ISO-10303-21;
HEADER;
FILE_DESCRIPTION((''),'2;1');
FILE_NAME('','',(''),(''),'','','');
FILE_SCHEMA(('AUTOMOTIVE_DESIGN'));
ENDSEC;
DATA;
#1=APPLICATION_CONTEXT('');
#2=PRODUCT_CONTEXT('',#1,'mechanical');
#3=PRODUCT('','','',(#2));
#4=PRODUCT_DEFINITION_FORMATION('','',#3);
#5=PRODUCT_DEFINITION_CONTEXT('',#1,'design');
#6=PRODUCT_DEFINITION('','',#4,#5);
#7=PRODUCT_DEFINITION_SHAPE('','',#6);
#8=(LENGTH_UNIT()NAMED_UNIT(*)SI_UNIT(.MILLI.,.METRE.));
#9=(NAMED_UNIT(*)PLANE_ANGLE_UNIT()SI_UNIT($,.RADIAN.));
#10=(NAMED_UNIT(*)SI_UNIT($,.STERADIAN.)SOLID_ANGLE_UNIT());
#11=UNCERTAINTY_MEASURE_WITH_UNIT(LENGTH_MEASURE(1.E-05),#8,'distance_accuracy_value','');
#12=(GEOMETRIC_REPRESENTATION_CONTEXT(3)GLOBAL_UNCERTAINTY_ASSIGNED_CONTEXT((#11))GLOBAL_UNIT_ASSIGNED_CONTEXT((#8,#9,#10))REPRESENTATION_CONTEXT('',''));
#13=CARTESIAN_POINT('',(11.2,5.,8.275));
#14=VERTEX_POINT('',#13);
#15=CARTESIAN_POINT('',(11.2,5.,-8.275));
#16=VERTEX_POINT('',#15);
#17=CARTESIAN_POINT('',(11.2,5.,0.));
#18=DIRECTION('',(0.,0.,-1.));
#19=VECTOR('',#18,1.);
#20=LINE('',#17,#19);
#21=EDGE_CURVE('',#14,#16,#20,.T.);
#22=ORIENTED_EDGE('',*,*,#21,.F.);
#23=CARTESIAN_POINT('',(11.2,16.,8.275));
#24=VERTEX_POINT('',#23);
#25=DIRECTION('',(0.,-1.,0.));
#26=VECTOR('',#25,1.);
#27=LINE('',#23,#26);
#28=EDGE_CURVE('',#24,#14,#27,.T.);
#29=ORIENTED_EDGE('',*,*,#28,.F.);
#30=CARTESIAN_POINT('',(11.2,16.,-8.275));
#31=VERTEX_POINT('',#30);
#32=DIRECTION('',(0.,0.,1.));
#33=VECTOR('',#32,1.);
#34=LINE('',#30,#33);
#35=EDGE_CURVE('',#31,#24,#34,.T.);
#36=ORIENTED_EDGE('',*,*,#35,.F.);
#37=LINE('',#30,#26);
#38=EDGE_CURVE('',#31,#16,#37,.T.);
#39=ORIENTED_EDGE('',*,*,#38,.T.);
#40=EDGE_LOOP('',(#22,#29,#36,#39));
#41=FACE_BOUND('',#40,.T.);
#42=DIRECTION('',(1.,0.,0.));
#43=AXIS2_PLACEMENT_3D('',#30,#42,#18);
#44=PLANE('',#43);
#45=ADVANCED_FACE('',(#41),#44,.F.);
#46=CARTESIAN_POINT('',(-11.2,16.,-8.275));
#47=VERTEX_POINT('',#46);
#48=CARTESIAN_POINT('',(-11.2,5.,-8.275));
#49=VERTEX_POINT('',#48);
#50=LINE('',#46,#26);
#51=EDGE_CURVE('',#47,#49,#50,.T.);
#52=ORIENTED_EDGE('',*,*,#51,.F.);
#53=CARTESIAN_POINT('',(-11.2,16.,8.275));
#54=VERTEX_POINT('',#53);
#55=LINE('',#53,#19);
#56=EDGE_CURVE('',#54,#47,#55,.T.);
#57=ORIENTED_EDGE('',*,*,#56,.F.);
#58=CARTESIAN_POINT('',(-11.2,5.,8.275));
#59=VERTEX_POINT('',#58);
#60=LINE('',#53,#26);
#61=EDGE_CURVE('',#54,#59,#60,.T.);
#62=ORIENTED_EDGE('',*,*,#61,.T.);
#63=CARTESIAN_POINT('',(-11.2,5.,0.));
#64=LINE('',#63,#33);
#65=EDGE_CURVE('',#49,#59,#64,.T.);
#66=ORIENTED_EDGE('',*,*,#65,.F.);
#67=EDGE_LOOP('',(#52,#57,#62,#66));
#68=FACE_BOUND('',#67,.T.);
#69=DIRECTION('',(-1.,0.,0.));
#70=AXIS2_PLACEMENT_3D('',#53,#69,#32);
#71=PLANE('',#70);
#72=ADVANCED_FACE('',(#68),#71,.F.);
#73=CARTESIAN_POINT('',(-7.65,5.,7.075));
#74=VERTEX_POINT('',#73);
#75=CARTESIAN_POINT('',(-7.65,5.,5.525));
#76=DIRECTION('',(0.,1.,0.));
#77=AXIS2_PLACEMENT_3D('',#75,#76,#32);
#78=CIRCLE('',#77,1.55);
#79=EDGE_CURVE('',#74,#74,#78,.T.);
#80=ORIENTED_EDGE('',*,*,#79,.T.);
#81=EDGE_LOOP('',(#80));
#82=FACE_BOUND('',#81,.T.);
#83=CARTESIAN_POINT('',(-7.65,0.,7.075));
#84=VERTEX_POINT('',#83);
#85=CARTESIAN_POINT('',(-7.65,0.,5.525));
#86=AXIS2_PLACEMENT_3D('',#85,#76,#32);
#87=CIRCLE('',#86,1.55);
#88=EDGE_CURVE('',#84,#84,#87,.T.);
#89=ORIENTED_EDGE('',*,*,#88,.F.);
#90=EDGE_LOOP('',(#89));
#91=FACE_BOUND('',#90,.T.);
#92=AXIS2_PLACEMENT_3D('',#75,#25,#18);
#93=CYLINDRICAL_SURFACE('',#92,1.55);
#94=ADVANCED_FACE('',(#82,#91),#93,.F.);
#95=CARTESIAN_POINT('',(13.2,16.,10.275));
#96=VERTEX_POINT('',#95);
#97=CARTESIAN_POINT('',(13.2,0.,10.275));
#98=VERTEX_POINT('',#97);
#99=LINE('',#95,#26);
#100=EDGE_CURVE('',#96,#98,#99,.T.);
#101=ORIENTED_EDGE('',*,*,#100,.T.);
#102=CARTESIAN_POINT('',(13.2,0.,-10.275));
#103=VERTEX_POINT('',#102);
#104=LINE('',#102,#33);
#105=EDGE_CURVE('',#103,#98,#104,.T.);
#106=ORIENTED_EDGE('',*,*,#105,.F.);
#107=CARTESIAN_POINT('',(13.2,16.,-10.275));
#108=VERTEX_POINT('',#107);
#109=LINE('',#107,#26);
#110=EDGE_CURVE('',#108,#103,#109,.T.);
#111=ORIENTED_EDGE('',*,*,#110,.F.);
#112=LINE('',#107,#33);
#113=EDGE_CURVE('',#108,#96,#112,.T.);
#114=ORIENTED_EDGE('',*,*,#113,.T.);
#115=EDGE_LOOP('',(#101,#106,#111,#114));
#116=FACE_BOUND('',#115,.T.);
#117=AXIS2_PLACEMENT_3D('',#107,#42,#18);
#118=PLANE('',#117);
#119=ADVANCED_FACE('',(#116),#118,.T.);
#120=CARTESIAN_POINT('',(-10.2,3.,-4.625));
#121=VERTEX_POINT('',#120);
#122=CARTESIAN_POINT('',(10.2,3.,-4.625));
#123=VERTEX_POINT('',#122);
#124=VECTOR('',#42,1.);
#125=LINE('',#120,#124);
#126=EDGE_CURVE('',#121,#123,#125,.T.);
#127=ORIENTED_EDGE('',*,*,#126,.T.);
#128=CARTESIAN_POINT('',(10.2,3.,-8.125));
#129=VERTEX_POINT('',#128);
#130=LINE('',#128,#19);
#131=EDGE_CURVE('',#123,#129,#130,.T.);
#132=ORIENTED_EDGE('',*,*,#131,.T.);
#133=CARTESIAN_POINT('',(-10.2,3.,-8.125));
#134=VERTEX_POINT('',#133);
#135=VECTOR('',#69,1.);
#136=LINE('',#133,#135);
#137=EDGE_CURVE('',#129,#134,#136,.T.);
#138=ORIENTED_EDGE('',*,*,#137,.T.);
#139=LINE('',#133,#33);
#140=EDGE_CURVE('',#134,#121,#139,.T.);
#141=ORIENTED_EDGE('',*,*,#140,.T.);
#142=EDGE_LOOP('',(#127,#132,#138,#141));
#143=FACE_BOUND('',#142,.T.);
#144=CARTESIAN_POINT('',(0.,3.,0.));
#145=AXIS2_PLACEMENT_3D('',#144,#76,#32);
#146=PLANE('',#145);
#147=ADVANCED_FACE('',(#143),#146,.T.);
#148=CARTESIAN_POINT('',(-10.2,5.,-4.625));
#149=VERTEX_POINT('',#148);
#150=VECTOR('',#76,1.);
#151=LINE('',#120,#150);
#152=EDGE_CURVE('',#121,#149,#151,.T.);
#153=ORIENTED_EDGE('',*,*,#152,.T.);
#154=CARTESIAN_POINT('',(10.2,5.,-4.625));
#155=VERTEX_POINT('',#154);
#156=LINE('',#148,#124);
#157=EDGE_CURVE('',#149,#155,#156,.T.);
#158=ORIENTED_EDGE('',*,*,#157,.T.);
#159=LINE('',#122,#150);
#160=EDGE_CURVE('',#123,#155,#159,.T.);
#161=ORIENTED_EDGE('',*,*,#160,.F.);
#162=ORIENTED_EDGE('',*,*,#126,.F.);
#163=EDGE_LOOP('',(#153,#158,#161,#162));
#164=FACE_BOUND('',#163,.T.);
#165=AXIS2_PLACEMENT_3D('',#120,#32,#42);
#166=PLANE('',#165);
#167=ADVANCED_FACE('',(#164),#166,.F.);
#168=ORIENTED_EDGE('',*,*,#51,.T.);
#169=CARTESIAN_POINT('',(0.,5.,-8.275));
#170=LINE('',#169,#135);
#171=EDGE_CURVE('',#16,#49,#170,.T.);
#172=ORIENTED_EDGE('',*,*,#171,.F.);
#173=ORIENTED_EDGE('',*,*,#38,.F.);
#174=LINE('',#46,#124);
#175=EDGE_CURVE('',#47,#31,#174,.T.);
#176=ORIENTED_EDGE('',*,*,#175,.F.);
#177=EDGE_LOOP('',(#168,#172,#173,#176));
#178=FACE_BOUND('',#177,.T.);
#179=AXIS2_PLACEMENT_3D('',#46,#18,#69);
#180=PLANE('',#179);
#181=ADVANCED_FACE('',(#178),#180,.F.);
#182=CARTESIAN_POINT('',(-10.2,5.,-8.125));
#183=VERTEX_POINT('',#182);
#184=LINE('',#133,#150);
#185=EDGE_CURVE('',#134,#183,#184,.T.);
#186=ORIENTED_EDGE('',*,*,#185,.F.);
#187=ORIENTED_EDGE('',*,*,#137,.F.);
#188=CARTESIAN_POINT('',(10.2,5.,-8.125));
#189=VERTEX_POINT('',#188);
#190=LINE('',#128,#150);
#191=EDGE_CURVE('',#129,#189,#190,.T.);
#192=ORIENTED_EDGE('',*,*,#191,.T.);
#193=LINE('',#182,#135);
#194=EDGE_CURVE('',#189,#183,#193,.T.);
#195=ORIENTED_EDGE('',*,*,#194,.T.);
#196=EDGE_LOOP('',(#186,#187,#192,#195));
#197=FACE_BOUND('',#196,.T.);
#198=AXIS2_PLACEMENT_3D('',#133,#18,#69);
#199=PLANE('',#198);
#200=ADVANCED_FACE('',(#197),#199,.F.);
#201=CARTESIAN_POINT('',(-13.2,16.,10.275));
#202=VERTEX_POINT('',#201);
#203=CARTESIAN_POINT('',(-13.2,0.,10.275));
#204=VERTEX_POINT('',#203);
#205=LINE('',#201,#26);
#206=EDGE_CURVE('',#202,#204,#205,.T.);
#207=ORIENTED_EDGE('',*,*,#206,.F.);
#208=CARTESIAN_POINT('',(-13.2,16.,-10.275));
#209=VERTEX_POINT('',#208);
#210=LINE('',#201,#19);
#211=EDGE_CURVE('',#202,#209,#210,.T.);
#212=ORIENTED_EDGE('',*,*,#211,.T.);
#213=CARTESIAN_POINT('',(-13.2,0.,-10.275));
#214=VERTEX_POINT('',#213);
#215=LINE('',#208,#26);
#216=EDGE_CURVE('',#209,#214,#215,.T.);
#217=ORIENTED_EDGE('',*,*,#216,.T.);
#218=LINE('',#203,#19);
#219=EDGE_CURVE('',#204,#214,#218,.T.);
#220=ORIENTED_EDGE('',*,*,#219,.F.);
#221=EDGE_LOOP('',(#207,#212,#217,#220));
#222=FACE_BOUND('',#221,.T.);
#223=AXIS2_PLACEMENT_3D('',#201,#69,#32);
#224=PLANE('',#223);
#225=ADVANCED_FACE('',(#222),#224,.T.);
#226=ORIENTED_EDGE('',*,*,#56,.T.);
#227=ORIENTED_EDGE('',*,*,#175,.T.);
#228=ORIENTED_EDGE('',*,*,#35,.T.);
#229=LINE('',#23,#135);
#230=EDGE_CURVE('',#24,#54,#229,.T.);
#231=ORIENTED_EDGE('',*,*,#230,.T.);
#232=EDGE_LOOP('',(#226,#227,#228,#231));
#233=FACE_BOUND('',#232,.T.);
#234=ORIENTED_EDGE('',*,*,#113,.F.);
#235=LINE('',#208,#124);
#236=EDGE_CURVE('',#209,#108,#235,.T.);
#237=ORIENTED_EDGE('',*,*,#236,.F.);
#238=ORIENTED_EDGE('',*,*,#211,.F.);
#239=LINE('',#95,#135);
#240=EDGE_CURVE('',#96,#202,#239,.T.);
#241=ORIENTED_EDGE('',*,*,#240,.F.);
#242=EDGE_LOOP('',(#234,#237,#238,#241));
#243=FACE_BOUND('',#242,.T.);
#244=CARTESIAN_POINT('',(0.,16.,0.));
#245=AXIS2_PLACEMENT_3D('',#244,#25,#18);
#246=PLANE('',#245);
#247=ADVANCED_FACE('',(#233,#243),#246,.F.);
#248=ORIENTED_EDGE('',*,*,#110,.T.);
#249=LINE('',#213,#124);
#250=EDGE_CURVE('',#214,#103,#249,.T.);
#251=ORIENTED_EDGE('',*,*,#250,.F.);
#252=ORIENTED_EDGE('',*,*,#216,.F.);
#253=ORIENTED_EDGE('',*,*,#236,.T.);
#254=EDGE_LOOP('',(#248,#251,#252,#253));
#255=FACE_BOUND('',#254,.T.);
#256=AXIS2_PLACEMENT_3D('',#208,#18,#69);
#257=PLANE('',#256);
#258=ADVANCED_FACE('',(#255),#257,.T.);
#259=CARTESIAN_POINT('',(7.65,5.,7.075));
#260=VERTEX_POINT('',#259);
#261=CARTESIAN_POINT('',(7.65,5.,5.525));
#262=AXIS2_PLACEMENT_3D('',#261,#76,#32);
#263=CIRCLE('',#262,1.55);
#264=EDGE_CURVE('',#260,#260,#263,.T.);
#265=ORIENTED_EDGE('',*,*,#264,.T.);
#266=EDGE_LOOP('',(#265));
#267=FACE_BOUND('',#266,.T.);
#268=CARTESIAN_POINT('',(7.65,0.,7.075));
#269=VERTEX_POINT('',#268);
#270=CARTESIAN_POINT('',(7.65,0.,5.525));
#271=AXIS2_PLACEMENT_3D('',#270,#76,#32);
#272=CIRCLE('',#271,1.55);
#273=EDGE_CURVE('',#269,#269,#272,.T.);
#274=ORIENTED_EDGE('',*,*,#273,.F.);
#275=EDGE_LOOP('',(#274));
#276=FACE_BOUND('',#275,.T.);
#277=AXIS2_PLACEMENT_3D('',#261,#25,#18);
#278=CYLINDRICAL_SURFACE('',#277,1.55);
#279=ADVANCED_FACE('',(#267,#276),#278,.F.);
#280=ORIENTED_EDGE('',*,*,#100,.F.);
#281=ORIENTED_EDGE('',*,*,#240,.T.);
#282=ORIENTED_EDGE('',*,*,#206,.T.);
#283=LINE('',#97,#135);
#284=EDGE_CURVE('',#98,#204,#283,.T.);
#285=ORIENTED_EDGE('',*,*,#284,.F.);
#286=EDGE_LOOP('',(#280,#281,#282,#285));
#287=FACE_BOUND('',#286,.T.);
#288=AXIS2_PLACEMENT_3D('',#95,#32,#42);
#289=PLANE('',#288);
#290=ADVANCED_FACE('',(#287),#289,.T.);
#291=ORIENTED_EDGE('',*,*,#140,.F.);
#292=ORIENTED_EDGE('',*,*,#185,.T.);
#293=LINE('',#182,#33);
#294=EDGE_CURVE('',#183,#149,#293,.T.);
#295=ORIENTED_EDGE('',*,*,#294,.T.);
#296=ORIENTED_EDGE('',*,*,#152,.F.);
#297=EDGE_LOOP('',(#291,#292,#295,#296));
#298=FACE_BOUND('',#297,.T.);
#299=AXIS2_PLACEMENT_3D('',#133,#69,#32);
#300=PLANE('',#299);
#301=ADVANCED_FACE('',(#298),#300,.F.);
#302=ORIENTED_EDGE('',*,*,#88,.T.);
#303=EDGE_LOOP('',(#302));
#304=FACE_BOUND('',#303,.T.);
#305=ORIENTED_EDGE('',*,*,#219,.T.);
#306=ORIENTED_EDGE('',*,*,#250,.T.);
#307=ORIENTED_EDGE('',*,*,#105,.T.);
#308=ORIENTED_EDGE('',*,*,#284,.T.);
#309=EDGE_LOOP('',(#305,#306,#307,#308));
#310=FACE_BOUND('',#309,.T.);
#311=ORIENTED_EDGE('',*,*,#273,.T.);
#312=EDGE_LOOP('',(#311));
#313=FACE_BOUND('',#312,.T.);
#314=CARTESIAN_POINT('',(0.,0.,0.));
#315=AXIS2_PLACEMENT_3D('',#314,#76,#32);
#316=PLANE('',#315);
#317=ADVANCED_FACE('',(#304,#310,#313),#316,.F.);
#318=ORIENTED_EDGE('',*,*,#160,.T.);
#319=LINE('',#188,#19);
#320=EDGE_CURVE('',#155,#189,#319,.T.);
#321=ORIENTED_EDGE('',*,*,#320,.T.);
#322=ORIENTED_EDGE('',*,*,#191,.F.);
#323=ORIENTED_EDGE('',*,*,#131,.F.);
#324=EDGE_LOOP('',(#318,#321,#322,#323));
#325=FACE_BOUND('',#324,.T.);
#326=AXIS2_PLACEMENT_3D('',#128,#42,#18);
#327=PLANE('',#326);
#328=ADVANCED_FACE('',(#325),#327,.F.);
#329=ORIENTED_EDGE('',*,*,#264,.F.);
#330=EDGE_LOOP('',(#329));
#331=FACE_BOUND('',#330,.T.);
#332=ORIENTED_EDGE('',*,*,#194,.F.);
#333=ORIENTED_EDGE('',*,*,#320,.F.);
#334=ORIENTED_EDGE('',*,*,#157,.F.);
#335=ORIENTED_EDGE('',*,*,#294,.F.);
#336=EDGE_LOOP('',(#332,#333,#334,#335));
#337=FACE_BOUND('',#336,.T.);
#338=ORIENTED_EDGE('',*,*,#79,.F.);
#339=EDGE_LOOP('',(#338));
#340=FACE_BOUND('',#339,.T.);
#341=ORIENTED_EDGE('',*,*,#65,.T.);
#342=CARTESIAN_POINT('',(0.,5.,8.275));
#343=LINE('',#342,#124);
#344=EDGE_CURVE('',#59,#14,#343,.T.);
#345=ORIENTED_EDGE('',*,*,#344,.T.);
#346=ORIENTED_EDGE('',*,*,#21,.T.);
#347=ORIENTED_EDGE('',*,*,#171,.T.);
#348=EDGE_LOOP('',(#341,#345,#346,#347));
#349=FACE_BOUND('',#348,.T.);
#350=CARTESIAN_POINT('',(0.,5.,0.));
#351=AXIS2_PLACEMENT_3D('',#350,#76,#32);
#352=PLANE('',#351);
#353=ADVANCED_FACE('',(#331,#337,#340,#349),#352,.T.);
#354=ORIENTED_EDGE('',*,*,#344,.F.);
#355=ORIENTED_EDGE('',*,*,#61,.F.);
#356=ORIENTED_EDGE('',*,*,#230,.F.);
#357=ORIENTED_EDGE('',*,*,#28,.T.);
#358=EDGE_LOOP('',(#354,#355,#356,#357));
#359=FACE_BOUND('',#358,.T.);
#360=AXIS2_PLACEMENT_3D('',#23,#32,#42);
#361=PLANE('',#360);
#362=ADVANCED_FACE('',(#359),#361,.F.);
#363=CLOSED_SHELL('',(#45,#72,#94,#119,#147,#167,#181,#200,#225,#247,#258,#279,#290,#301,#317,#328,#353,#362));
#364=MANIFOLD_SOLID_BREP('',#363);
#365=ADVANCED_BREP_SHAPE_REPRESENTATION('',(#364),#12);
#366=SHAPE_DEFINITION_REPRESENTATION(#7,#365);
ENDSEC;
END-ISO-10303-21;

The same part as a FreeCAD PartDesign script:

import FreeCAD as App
import Part
import Sketcher


def add_polygon(sketch, points):
    """Adds a closed chain of lines whose ends are joined by coincident constraints."""
    first, n = sketch.GeometryCount, len(points)
    for a, b in zip(points, points[1:] + points[:1]):
        sketch.addGeometry(Part.LineSegment(App.Vector(*a, 0), App.Vector(*b, 0)), False)
    for i in range(n):
        sketch.addConstraint(Sketcher.Constraint("Coincident", first + i, 2, first + (i + 1) % n, 1))

doc = App.newDocument("Part")
body = doc.addObject("PartDesign::Body", "Body")

sketch1 = doc.addObject("Sketcher::SketchObject", "Sketch")
body.addObject(sketch1)
sketch1.AttachmentSupport = (doc.XZ_Plane, [""])
sketch1.MapMode = "FlatFace"
add_polygon(sketch1, [(11.2, 8.275), (11.2, -8.275), (-11.2, -8.275), (-11.2, 8.275)])
sketch1.addGeometry(Part.Circle(App.Vector(-7.65, 5.525, 0), App.Vector(0, 0, 1), 1.55), False)
sketch1.addGeometry(Part.Circle(App.Vector(7.65, 5.525, 0), App.Vector(0, 0, 1), 1.55), False)
sketch1.addConstraint([
    Sketcher.Constraint("Vertical", 0),
    Sketcher.Constraint("Horizontal", 1),
    Sketcher.Constraint("Vertical", 2),
    Sketcher.Constraint("Horizontal", 3),
    Sketcher.Constraint("Equal", 4, 5),
    Sketcher.Constraint("Symmetric", 0, 2, 2, 2, -1, 1),
    Sketcher.Constraint("Symmetric", 4, 3, 5, 3, -2),
    Sketcher.Constraint("Diameter", 4, 3.1),
    Sketcher.Constraint("DistanceX", 1, 2, 1, 1, 22.4),
    Sketcher.Constraint("DistanceY", 0, 2, 0, 1, 16.55),
    Sketcher.Constraint("DistanceX", 4, 3, 5, 3, 15.3),
    Sketcher.Constraint("DistanceY", 0, 2, 5, 3, 13.8),
])
pad1 = doc.addObject("PartDesign::Pad", "Pad")
body.addObject(pad1)
pad1.Profile = sketch1
pad1.Length = 5
pad1.Reversed = True

sketch2 = doc.addObject("Sketcher::SketchObject", "Sketch001")
body.addObject(sketch2)
sketch2.AttachmentSupport = (doc.XZ_Plane, [""])
sketch2.MapMode = "FlatFace"
sketch2.AttachmentOffset = App.Placement(App.Vector(0, 0, -5), App.Rotation())
add_polygon(sketch2, [(-10.2, -8.125), (-10.2, -4.625), (10.2, -4.625), (10.2, -8.125)])
sketch2.addConstraint([
    Sketcher.Constraint("Vertical", 0),
    Sketcher.Constraint("Horizontal", 1),
    Sketcher.Constraint("Vertical", 2),
    Sketcher.Constraint("Horizontal", 3),
    Sketcher.Constraint("DistanceX", 1, 1, 1, 2, 20.4),
    Sketcher.Constraint("DistanceY", 0, 1, 0, 2, 3.5),
    Sketcher.Constraint("DistanceX", 0, 2, -1, 1, 10.2),
    Sketcher.Constraint("DistanceY", 0, 2, -1, 1, 4.625),
])
pocket1 = doc.addObject("PartDesign::Pocket", "Pocket")
body.addObject(pocket1)
pocket1.Profile = sketch2
pocket1.Length = 2
pocket1.Reversed = True

sketch3 = doc.addObject("Sketcher::SketchObject", "Sketch002")
body.addObject(sketch3)
sketch3.AttachmentSupport = (doc.XZ_Plane, [""])
sketch3.MapMode = "FlatFace"
add_polygon(sketch3, [(-13.2, 10.275), (-13.2, -10.275), (13.2, -10.275), (13.2, 10.275)])
add_polygon(sketch3, [(11.2, -8.275), (-11.2, -8.275), (-11.2, 8.275), (11.2, 8.275)])
sketch3.addConstraint([
    Sketcher.Constraint("Vertical", 0),
    Sketcher.Constraint("Horizontal", 1),
    Sketcher.Constraint("Vertical", 2),
    Sketcher.Constraint("Horizontal", 3),
    Sketcher.Constraint("Horizontal", 4),
    Sketcher.Constraint("Vertical", 5),
    Sketcher.Constraint("Horizontal", 6),
    Sketcher.Constraint("Vertical", 7),
    Sketcher.Constraint("Symmetric", 0, 2, 2, 2, -1, 1),
    Sketcher.Constraint("Symmetric", 4, 2, 6, 2, -1, 1),
    Sketcher.Constraint("DistanceX", 1, 1, 1, 2, 26.4),
    Sketcher.Constraint("DistanceX", 4, 2, 4, 1, 22.4),
    Sketcher.Constraint("DistanceY", 0, 2, 4, 2, 2.0),
    Sketcher.Constraint("DistanceY", 0, 2, 0, 1, 20.55),
])
pad2 = doc.addObject("PartDesign::Pad", "Pad001")
body.addObject(pad2)
pad2.Profile = sketch3
pad2.Length = 16
pad2.Reversed = True

doc.recompute()
